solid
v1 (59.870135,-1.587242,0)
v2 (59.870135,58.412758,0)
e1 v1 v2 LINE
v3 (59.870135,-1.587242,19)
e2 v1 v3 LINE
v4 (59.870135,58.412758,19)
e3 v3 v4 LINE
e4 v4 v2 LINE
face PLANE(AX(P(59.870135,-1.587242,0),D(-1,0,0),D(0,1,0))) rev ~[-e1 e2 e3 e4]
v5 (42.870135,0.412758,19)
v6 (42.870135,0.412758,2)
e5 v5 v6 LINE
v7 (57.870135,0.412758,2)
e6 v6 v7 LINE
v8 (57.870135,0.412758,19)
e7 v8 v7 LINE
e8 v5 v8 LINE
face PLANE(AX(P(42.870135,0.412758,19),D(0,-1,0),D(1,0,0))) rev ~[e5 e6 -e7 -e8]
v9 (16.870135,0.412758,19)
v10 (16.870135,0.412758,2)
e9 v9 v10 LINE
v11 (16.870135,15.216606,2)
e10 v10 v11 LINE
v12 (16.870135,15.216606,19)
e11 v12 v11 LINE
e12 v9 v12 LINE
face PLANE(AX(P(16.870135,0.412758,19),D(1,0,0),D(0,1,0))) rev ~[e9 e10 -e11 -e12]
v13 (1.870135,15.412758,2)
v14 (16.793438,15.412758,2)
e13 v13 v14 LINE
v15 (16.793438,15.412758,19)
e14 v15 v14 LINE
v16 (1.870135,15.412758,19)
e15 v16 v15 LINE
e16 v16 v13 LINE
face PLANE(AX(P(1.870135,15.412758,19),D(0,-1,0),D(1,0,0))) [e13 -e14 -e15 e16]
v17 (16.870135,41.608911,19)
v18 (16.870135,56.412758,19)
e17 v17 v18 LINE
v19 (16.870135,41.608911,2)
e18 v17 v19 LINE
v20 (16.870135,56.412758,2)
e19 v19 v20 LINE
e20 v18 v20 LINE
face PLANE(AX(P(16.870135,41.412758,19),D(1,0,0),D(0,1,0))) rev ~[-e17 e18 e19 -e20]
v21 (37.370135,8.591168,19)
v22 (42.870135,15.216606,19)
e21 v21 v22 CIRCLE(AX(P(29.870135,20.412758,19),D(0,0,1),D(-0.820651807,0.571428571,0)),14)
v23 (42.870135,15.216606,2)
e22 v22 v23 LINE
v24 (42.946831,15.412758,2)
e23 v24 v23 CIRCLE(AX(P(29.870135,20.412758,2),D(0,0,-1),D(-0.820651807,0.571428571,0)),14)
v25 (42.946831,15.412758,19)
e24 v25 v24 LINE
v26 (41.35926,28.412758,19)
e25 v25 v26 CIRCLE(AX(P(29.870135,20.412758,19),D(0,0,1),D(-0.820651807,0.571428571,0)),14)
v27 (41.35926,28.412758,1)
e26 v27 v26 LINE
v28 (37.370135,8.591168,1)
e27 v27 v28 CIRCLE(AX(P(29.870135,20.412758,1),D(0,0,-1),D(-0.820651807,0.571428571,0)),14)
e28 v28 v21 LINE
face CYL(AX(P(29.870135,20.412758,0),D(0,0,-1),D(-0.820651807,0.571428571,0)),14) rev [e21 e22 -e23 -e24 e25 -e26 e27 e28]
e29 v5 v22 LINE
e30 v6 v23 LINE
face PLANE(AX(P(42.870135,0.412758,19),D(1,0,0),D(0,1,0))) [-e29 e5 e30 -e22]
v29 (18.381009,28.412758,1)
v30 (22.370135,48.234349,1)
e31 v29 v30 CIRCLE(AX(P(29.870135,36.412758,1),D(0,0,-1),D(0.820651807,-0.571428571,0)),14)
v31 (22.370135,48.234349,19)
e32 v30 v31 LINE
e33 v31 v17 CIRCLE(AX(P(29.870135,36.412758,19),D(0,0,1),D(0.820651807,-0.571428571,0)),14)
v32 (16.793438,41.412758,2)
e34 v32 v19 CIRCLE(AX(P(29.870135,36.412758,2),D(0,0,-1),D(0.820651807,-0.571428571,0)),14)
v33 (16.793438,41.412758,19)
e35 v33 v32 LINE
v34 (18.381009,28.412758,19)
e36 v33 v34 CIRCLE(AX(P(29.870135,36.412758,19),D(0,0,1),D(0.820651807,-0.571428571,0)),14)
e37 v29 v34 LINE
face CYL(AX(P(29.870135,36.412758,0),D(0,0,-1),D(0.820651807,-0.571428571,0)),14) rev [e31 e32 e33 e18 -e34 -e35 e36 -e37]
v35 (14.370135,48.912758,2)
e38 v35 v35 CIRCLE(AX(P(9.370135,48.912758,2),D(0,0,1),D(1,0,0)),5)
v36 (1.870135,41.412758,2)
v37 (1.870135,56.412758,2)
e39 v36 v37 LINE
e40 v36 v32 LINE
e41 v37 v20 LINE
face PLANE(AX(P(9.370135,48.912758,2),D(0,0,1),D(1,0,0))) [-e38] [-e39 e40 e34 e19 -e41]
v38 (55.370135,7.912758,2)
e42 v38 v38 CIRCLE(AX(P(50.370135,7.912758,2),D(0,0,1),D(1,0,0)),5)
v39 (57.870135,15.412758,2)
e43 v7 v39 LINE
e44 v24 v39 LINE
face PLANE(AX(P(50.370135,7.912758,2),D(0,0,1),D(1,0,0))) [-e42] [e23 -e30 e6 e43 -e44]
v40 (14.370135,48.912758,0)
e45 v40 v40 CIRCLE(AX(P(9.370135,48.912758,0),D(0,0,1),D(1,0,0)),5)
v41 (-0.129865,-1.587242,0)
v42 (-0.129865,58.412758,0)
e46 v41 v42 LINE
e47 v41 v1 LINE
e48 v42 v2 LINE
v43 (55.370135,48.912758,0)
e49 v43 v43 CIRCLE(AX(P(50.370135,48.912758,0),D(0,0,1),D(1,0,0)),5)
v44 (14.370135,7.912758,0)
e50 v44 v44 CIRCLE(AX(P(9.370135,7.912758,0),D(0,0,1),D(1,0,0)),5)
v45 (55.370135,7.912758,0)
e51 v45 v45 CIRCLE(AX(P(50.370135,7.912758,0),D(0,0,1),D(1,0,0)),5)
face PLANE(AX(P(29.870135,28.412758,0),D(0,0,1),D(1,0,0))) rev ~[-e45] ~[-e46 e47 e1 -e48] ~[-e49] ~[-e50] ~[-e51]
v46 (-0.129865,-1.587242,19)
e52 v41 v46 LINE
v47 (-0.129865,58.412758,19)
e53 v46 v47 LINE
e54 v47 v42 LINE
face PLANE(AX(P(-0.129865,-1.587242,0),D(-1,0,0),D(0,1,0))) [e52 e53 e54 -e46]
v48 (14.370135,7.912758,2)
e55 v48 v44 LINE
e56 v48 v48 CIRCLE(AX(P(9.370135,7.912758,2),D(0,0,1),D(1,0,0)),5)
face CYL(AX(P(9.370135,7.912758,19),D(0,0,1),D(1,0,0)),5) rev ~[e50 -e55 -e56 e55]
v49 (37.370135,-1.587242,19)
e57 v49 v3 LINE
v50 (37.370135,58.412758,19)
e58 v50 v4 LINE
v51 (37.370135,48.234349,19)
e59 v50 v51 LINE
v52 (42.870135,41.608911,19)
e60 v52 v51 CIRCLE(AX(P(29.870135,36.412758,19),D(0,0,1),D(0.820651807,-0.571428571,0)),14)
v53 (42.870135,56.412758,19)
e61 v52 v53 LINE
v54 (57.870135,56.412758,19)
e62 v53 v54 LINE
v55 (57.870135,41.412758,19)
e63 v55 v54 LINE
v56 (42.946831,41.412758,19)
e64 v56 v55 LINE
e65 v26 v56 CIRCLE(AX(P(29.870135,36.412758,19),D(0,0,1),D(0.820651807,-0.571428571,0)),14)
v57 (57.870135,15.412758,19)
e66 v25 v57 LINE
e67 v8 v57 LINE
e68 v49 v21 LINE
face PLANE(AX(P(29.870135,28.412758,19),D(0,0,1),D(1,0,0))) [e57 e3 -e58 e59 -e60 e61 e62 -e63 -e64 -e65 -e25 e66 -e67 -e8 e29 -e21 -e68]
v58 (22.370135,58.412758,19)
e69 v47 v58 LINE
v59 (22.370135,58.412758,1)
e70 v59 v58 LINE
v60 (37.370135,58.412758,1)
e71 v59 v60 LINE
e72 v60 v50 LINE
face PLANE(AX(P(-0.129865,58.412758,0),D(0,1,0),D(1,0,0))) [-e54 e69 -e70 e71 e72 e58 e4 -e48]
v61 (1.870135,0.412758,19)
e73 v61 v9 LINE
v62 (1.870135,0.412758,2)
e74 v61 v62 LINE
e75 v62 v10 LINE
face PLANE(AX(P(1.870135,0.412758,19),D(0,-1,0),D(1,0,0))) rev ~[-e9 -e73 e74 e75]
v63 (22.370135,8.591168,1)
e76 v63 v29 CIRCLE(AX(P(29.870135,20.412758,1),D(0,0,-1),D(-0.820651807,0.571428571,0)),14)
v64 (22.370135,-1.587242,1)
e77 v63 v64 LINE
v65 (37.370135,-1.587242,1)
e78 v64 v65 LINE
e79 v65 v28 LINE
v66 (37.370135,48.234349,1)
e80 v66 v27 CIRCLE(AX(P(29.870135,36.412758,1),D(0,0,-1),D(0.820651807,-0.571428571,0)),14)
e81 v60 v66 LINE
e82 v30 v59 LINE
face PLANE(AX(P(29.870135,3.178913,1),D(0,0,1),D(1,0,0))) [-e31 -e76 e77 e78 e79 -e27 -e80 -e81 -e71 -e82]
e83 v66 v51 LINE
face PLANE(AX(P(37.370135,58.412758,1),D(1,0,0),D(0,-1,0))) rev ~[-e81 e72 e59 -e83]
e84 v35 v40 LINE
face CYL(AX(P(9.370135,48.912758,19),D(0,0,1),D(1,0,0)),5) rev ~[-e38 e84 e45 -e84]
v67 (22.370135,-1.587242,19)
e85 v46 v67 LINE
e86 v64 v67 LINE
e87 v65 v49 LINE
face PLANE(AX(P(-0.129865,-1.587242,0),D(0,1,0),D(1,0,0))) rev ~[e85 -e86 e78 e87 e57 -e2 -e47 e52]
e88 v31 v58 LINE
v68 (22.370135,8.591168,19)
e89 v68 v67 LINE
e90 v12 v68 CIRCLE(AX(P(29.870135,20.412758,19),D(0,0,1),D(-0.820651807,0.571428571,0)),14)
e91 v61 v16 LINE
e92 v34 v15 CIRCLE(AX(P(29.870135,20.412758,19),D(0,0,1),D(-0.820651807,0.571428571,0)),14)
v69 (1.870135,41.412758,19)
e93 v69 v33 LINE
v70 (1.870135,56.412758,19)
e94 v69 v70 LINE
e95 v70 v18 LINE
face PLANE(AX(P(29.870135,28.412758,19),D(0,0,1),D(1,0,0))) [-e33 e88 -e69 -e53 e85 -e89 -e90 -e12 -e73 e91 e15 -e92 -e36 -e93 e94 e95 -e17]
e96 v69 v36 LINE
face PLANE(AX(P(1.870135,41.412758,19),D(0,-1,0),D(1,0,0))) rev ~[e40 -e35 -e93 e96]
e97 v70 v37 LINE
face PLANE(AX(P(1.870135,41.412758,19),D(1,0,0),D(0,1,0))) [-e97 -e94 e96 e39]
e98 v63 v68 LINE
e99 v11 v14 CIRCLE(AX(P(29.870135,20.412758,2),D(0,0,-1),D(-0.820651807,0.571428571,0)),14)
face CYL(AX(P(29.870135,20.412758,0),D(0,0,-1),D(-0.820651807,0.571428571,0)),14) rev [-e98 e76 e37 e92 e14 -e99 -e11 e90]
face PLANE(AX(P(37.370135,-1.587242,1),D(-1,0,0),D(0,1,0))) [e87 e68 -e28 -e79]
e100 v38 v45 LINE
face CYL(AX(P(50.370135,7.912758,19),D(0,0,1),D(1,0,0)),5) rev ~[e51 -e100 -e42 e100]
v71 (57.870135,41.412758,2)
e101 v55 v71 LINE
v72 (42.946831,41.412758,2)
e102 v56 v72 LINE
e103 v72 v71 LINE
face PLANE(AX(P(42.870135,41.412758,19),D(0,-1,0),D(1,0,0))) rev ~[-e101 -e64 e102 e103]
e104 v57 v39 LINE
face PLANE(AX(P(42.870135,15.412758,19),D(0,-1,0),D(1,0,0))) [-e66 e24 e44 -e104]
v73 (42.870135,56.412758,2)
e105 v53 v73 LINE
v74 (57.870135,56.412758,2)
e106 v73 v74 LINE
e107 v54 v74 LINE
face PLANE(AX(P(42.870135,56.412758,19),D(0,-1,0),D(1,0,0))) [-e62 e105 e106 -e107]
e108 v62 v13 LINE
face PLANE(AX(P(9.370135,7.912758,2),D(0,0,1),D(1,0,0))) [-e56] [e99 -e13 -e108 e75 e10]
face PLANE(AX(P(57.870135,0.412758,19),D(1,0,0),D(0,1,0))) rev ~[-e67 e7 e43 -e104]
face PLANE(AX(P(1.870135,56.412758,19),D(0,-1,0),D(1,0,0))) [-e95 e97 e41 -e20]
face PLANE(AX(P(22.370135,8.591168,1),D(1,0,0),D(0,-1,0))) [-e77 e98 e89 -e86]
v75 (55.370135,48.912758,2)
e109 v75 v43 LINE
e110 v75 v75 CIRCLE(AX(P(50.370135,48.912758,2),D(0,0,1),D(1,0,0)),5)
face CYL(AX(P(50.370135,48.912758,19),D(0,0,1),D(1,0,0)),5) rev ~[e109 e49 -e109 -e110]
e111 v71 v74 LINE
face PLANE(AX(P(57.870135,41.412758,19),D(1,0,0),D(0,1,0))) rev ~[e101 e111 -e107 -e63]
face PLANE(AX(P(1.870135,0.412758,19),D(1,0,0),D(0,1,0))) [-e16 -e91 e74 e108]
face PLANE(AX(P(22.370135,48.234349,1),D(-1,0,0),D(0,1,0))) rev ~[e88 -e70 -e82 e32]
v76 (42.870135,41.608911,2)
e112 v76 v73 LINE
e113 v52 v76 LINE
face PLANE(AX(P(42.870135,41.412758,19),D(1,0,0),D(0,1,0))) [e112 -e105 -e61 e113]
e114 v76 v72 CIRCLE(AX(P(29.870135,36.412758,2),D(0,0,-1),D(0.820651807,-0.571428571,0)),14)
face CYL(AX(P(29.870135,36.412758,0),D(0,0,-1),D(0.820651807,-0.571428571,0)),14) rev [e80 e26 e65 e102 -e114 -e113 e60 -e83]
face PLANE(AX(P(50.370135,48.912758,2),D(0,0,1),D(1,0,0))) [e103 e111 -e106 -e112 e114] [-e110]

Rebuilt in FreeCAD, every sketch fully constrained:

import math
import FreeCAD as App
import Part
import Sketcher

V = App.Vector

doc = App.newDocument("Part")
params = doc.addObject("Spreadsheet::Sheet", "Params")
for row, (alias, value) in enumerate([
    ("sketch1_width", "60 mm"),
    ("pad1_length", "1 mm"),
    ("sketch2_radius", "14 mm"),
    ("sketch2_width", "60 mm"),
    ("pad2_length", "19 mm"),
    ("sketch3_width", "15 mm"),
    ("pocket1_length", "17 mm"),
    ("sketch4_diameter", "10 mm"),
    ("sketch5_diameter", "9 mm"),
    ("sketch5_radius", "14 mm"),
    ("sketch5_width", "15 mm"),
    ("pocket3_length", "18 mm"),
], start=1):
    params.set(f"A{row}", alias)
    params.set(f"B{row}", "=" + value)
    params.setAlias(f"B{row}", alias)

body = doc.addObject("PartDesign::Body", "Body")

# Sketch on XY plane
sketch1 = body.newObject("Sketcher::SketchObject", "Sketch")
sketch1.AttachmentSupport = (doc.getObject("XY_Plane"), [""])
sketch1.MapMode = "FlatFace"
sketch1.addGeometry(Part.LineSegment(V(-0.129865, 58.412758, 0), V(-0.129865, -1.587242, 0)), False)
sketch1.addGeometry(Part.LineSegment(V(-0.129865, -1.587242, 0), V(59.870135, -1.587242, 0)), False)
sketch1.addGeometry(Part.LineSegment(V(59.870135, -1.587242, 0), V(59.870135, 58.412758, 0)), False)
sketch1.addGeometry(Part.LineSegment(V(59.870135, 58.412758, 0), V(-0.129865, 58.412758, 0)), False)
sketch1.addConstraint(Sketcher.Constraint("Coincident", 0, 2, 1, 1))
sketch1.addConstraint(Sketcher.Constraint("Coincident", 1, 2, 2, 1))
sketch1.addConstraint(Sketcher.Constraint("Coincident", 2, 2, 3, 1))
sketch1.addConstraint(Sketcher.Constraint("Coincident", 3, 2, 0, 1))
sketch1.addConstraint(Sketcher.Constraint("Vertical", 0))
sketch1.addConstraint(Sketcher.Constraint("Horizontal", 1))
sketch1.addConstraint(Sketcher.Constraint("Vertical", 2))
sketch1.addConstraint(Sketcher.Constraint("Horizontal", 3))
sketch1.addConstraint(Sketcher.Constraint("Equal", 3, 0))
sketch1.addConstraint(Sketcher.Constraint("DistanceX", 1, 1, 1, 2, 60.0))
sketch1.addConstraint(Sketcher.Constraint("DistanceY", 0, 2, -1, 1, 1.587242))
sketch1.addConstraint(Sketcher.Constraint("DistanceX", 0, 2, -1, 1, 0.129865))
sketch1.setExpression("Constraints[9]", "Params.sketch1_width")
pad1 = body.newObject("PartDesign::Pad", "Pad")
pad1.Profile = sketch1
pad1.setExpression("Length", "Params.pad1_length")

# Sketch on XY plane
sketch2 = body.newObject("Sketcher::SketchObject", "Sketch001")
sketch2.AttachmentSupport = (doc.getObject("XY_Plane"), [""])
sketch2.MapMode = "FlatFace"
sketch2.addGeometry(Part.LineSegment(V(-0.129865, 58.412758, 0), V(-0.129865, -1.587242, 0)), False)
sketch2.addGeometry(Part.LineSegment(V(-0.129865, -1.587242, 0), V(59.870135, -1.587242, 0)), False)
sketch2.addGeometry(Part.LineSegment(V(59.870135, -1.587242, 0), V(59.870135, 58.412758, 0)), False)
sketch2.addGeometry(Part.LineSegment(V(59.870135, 58.412758, 0), V(-0.129865, 58.412758, 0)), False)
sketch2.addGeometry(Part.ArcOfCircle(Part.Circle(V(29.870135, 20.412758, 0), V(0, 0, 1), 14), math.radians(145.150095), math.radians(394.849905)), False)
sketch2.addGeometry(Part.ArcOfCircle(Part.Circle(V(29.870135, 36.412758, 0), V(0, 0, 1), 14), math.radians(-34.849905), math.radians(214.849905)), False)
sketch2.addConstraint(Sketcher.Constraint("Coincident", 0, 2, 1, 1))
sketch2.addConstraint(Sketcher.Constraint("Coincident", 1, 2, 2, 1))
sketch2.addConstraint(Sketcher.Constraint("Coincident", 2, 2, 3, 1))
sketch2.addConstraint(Sketcher.Constraint("Coincident", 3, 2, 0, 1))
sketch2.addConstraint(Sketcher.Constraint("Coincident", 4, 1, 5, 2))
sketch2.addConstraint(Sketcher.Constraint("Coincident", 5, 1, 4, 2))
sketch2.addConstraint(Sketcher.Constraint("Vertical", 0))
sketch2.addConstraint(Sketcher.Constraint("Horizontal", 1))
sketch2.addConstraint(Sketcher.Constraint("Vertical", 2))
sketch2.addConstraint(Sketcher.Constraint("Horizontal", 3))
sketch2.addConstraint(Sketcher.Constraint("Equal", 4, 5))
sketch2.addConstraint(Sketcher.Constraint("Horizontal", 4, 1, 5, 1))
sketch2.addConstraint(Sketcher.Constraint("Equal", 3, 0))
sketch2.addConstraint(Sketcher.Constraint("Radius", 4, 14.0))
sketch2.addConstraint(Sketcher.Constraint("DistanceX", 1, 1, 1, 2, 60.0))
sketch2.addConstraint(Sketcher.Constraint("DistanceY", 4, 3, 5, 3, 16.0))
sketch2.addConstraint(Sketcher.Constraint("DistanceX", 0, 2, 4, 3, 30.0))
sketch2.addConstraint(Sketcher.Constraint("DistanceY", 0, 2, 4, 3, 22.0))
sketch2.addConstraint(Sketcher.Constraint("DistanceY", -1, 1, 4, 3, 20.412758))
sketch2.addConstraint(Sketcher.Constraint("DistanceX", -1, 1, 4, 1, 18.381009))
sketch2.setExpression("Constraints[13]", "Params.sketch2_radius")
sketch2.setExpression("Constraints[14]", "Params.sketch2_width")
pad2 = body.newObject("PartDesign::Pad", "Pad001")
pad2.Profile = sketch2
pad2.setExpression("Length", "Params.pad2_length")

# Sketch on XY plane
sketch3 = body.newObject("Sketcher::SketchObject", "Sketch002")
sketch3.AttachmentSupport = (doc.getObject("XY_Plane"), [""])
sketch3.MapMode = "FlatFace"
sketch3.AttachmentOffset = App.Placement(V(0, 0, 19), App.Rotation())
sketch3.addGeometry(Part.LineSegment(V(1.870135, 56.412758, 0), V(1.870135, 41.412758, 0)), False)
sketch3.addGeometry(Part.LineSegment(V(1.870135, 41.412758, 0), V(16.870135, 41.412758, 0)), False)
sketch3.addGeometry(Part.LineSegment(V(16.870135, 41.412758, 0), V(16.870135, 56.412758, 0)), False)
sketch3.addGeometry(Part.LineSegment(V(16.870135, 56.412758, 0), V(1.870135, 56.412758, 0)), False)
sketch3.addGeometry(Part.LineSegment(V(42.870135, 56.412758, 0), V(42.870135, 41.412758, 0)), False)
sketch3.addGeometry(Part.LineSegment(V(42.870135, 41.412758, 0), V(57.870135, 41.412758, 0)), False)
sketch3.addGeometry(Part.LineSegment(V(57.870135, 41.412758, 0), V(57.870135, 56.412758, 0)), False)
sketch3.addGeometry(Part.LineSegment(V(57.870135, 56.412758, 0), V(42.870135, 56.412758, 0)), False)
sketch3.addGeometry(Part.LineSegment(V(1.870135, 15.412758, 0), V(1.870135, 0.412758, 0)), False)
sketch3.addGeometry(Part.LineSegment(V(1.870135, 0.412758, 0), V(16.870135, 0.412758, 0)), False)
sketch3.addGeometry(Part.LineSegment(V(16.870135, 0.412758, 0), V(16.870135, 15.412758, 0)), False)
sketch3.addGeometry(Part.LineSegment(V(16.870135, 15.412758, 0), V(1.870135, 15.412758, 0)), False)
sketch3.addGeometry(Part.LineSegment(V(42.870135, 15.412758, 0), V(42.870135, 0.412758, 0)), False)
sketch3.addGeometry(Part.LineSegment(V(42.870135, 0.412758, 0), V(57.870135, 0.412758, 0)), False)
sketch3.addGeometry(Part.LineSegment(V(57.870135, 0.412758, 0), V(57.870135, 15.412758, 0)), False)
sketch3.addGeometry(Part.LineSegment(V(57.870135, 15.412758, 0), V(42.870135, 15.412758, 0)), False)
sketch3.addConstraint(Sketcher.Constraint("Coincident", 0, 2, 1, 1))
sketch3.addConstraint(Sketcher.Constraint("Coincident", 1, 2, 2, 1))
sketch3.addConstraint(Sketcher.Constraint("Coincident", 2, 2, 3, 1))
sketch3.addConstraint(Sketcher.Constraint("Coincident", 3, 2, 0, 1))
sketch3.addConstraint(Sketcher.Constraint("Coincident", 4, 2, 5, 1))
sketch3.addConstraint(Sketcher.Constraint("Coincident", 5, 2, 6, 1))
sketch3.addConstraint(Sketcher.Constraint("Coincident", 6, 2, 7, 1))
sketch3.addConstraint(Sketcher.Constraint("Coincident", 7, 2, 4, 1))
sketch3.addConstraint(Sketcher.Constraint("Coincident", 8, 2, 9, 1))
sketch3.addConstraint(Sketcher.Constraint("Coincident", 9, 2, 10, 1))
sketch3.addConstraint(Sketcher.Constraint("Coincident", 10, 2, 11, 1))
sketch3.addConstraint(Sketcher.Constraint("Coincident", 11, 2, 8, 1))
sketch3.addConstraint(Sketcher.Constraint("Coincident", 12, 2, 13, 1))
sketch3.addConstraint(Sketcher.Constraint("Coincident", 13, 2, 14, 1))
sketch3.addConstraint(Sketcher.Constraint("Coincident", 14, 2, 15, 1))
sketch3.addConstraint(Sketcher.Constraint("Coincident", 15, 2, 12, 1))
sketch3.addConstraint(Sketcher.Constraint("Vertical", 0))
sketch3.addConstraint(Sketcher.Constraint("Horizontal", 1))
sketch3.addConstraint(Sketcher.Constraint("Vertical", 2))
sketch3.addConstraint(Sketcher.Constraint("Horizontal", 3))
sketch3.addConstraint(Sketcher.Constraint("Vertical", 4))
sketch3.addConstraint(Sketcher.Constraint("Horizontal", 5))
sketch3.addConstraint(Sketcher.Constraint("Vertical", 6))
sketch3.addConstraint(Sketcher.Constraint("Horizontal", 7))
sketch3.addConstraint(Sketcher.Constraint("Vertical", 8))
sketch3.addConstraint(Sketcher.Constraint("Horizontal", 9))
sketch3.addConstraint(Sketcher.Constraint("Vertical", 10))
sketch3.addConstraint(Sketcher.Constraint("Horizontal", 11))
sketch3.addConstraint(Sketcher.Constraint("Vertical", 12))
sketch3.addConstraint(Sketcher.Constraint("Horizontal", 13))
sketch3.addConstraint(Sketcher.Constraint("Vertical", 14))
sketch3.addConstraint(Sketcher.Constraint("Horizontal", 15))
sketch3.addConstraint(Sketcher.Constraint("Horizontal", 1, 2, 4, 2))
sketch3.addConstraint(Sketcher.Constraint("Horizontal", 3, 2, 6, 2))
sketch3.addConstraint(Sketcher.Constraint("Horizontal", 9, 2, 12, 2))
sketch3.addConstraint(Sketcher.Constraint("Horizontal", 11, 2, 14, 2))
sketch3.addConstraint(Sketcher.Constraint("Vertical", 3, 2, 8, 2))
sketch3.addConstraint(Sketcher.Constraint("Vertical", 2, 2, 9, 2))
sketch3.addConstraint(Sketcher.Constraint("Vertical", 7, 2, 12, 2))
sketch3.addConstraint(Sketcher.Constraint("Vertical", 6, 2, 13, 2))
sketch3.addConstraint(Sketcher.Constraint("Equal", 3, 5))
sketch3.addConstraint(Sketcher.Constraint("Equal", 15, 0))
sketch3.addConstraint(Sketcher.Constraint("Equal", 6, 8))
sketch3.addConstraint(Sketcher.Constraint("DistanceX", 1, 1, 1, 2, 15.0))
sketch3.addConstraint(Sketcher.Constraint("DistanceX", 1, 2, 4, 2, 26.0))
sketch3.addConstraint(Sketcher.Constraint("DistanceY", 8, 2, 0, 2, 41.0))
sketch3.addConstraint(Sketcher.Constraint("DistanceY", -1, 1, 0, 2, 41.412758))
sketch3.addConstraint(Sketcher.Constraint("DistanceX", -1, 1, 0, 2, 1.870135))
sketch3.setExpression("Constraints[43]", "Params.sketch3_width")
pocket1 = body.newObject("PartDesign::Pocket", "Pocket")
pocket1.Profile = sketch3
pocket1.setExpression("Length", "Params.pocket1_length")

# Sketch on XY plane
sketch4 = body.newObject("Sketcher::SketchObject", "Sketch003")
sketch4.AttachmentSupport = (doc.getObject("XY_Plane"), [""])
sketch4.MapMode = "FlatFace"
sketch4.AttachmentOffset = App.Placement(V(0, 0, 19), App.Rotation())
sketch4.addGeometry(Part.Circle(V(9.370135, 48.912758, 0), V(0, 0, 1), 5), False)
sketch4.addGeometry(Part.Circle(V(9.370135, 7.912758, 0), V(0, 0, 1), 5), False)
sketch4.addGeometry(Part.Circle(V(50.370135, 7.912758, 0), V(0, 0, 1), 5), False)
sketch4.addGeometry(Part.Circle(V(50.370135, 48.912758, 0), V(0, 0, 1), 5), False)
sketch4.addConstraint(Sketcher.Constraint("Equal", 0, 1))
sketch4.addConstraint(Sketcher.Constraint("Equal", 1, 2))
sketch4.addConstraint(Sketcher.Constraint("Equal", 2, 3))
sketch4.addConstraint(Sketcher.Constraint("Horizontal", 1, 3, 2, 3))
sketch4.addConstraint(Sketcher.Constraint("Horizontal", 0, 3, 3, 3))
sketch4.addConstraint(Sketcher.Constraint("Vertical", 0, 3, 1, 3))
sketch4.addConstraint(Sketcher.Constraint("Vertical", 2, 3, 3, 3))
sketch4.addConstraint(Sketcher.Constraint("Diameter", 0, 10.0))
sketch4.addConstraint(Sketcher.Constraint("DistanceY", 1, 3, 0, 3, 41.0))
sketch4.addConstraint(Sketcher.Constraint("DistanceX", 1, 3, 2, 3, 41.0))
sketch4.addConstraint(Sketcher.Constraint("DistanceY", -1, 1, 0, 3, 48.912758))
sketch4.addConstraint(Sketcher.Constraint("DistanceX", -1, 1, 0, 3, 9.370135))
sketch4.setExpression("Constraints[7]", "Params.sketch4_diameter")
pocket2 = body.newObject("PartDesign::Pocket", "Pocket001")
pocket2.Profile = sketch4
pocket2.Type = "ThroughAll"

# Sketch on XY plane
sketch5 = body.newObject("Sketcher::SketchObject", "Sketch004")
sketch5.AttachmentSupport = (doc.getObject("XY_Plane"), [""])
sketch5.MapMode = "FlatFace"
sketch5.AttachmentOffset = App.Placement(V(0, 0, 1), App.Rotation())
sketch5.addGeometry(Part.Circle(V(29.870135, 28.412758, 0), V(0, 0, 1), 4.5), False)
sketch5.addGeometry(Part.LineSegment(V(22.370135, 8.591168, 0), V(22.370135, -1.587242, 0)), False)
sketch5.addGeometry(Part.LineSegment(V(22.370135, -1.587242, 0), V(37.370135, -1.587242, 0)), False)
sketch5.addGeometry(Part.LineSegment(V(37.370135, -1.587242, 0), V(37.370135, 8.591168, 0)), False)
sketch5.addGeometry(Part.ArcOfCircle(Part.Circle(V(29.870135, 20.412758, 0), V(0, 0, 1), 14), math.radians(-122.392365), math.radians(-57.607635)), False)
sketch5.addGeometry(Part.LineSegment(V(37.370135, 58.412758, 0), V(22.370135, 58.412758, 0)), False)
sketch5.addGeometry(Part.LineSegment(V(22.370135, 58.412758, 0), V(22.370135, 48.234349, 0)), False)
sketch5.addGeometry(Part.ArcOfCircle(Part.Circle(V(29.870135, 36.412758, 0), V(0, 0, 1), 14), math.radians(57.607635), math.radians(122.392365)), False)
sketch5.addGeometry(Part.LineSegment(V(37.370135, 48.234349, 0), V(37.370135, 58.412758, 0)), False)
sketch5.addConstraint(Sketcher.Constraint("Coincident", 1, 2, 2, 1))
sketch5.addConstraint(Sketcher.Constraint("Coincident", 2, 2, 3, 1))
sketch5.addConstraint(Sketcher.Constraint("Coincident", 3, 2, 4, 2))
sketch5.addConstraint(Sketcher.Constraint("Coincident", 4, 1, 1, 1))
sketch5.addConstraint(Sketcher.Constraint("Coincident", 5, 2, 6, 1))
sketch5.addConstraint(Sketcher.Constraint("Coincident", 6, 2, 7, 2))
sketch5.addConstraint(Sketcher.Constraint("Coincident", 7, 1, 8, 1))
sketch5.addConstraint(Sketcher.Constraint("Coincident", 8, 2, 5, 1))
sketch5.addConstraint(Sketcher.Constraint("Vertical", 1))
sketch5.addConstraint(Sketcher.Constraint("Horizontal", 2))
sketch5.addConstraint(Sketcher.Constraint("Vertical", 3))
sketch5.addConstraint(Sketcher.Constraint("Horizontal", 5))
sketch5.addConstraint(Sketcher.Constraint("Vertical", 6))
sketch5.addConstraint(Sketcher.Constraint("Vertical", 8))
sketch5.addConstraint(Sketcher.Constraint("Equal", 4, 7))
sketch5.addConstraint(Sketcher.Constraint("Horizontal", 3, 2, 4, 1))
sketch5.addConstraint(Sketcher.Constraint("Horizontal", 6, 2, 7, 1))
sketch5.addConstraint(Sketcher.Constraint("Vertical", 0, 3, 4, 3))
sketch5.addConstraint(Sketcher.Constraint("Vertical", 4, 3, 7, 3))
sketch5.addConstraint(Sketcher.Constraint("Vertical", 4, 1, 5, 2))
sketch5.addConstraint(Sketcher.Constraint("Equal", 3, 6))
sketch5.addConstraint(Sketcher.Constraint("Diameter", 0, 9.0))
sketch5.addConstraint(Sketcher.Constraint("Radius", 4, 14.0))
sketch5.addConstraint(Sketcher.Constraint("DistanceX", 2, 1, 2, 2, 15.0))
sketch5.addConstraint(Sketcher.Constraint("DistanceY", 4, 3, 0, 3, 8.0))
sketch5.addConstraint(Sketcher.Constraint("DistanceY", 0, 3, 7, 3, 8.0))
sketch5.addConstraint(Sketcher.Constraint("DistanceY", 1, 2, 4, 3, 22.0))
sketch5.addConstraint(Sketcher.Constraint("DistanceY", -1, 1, 0, 3, 28.412758))
sketch5.addConstraint(Sketcher.Constraint("DistanceX", -1, 1, 0, 3, 29.870135))
sketch5.setExpression("Constraints[21]", "Params.sketch5_diameter")
sketch5.setExpression("Constraints[22]", "Params.sketch5_radius")
sketch5.setExpression("Constraints[23]", "Params.sketch5_width")
pocket3 = body.newObject("PartDesign::Pocket", "Pocket002")
pocket3.Profile = sketch5
pocket3.setExpression("Length", "Params.pocket3_length")
pocket3.Reversed = True

doc.recompute()
